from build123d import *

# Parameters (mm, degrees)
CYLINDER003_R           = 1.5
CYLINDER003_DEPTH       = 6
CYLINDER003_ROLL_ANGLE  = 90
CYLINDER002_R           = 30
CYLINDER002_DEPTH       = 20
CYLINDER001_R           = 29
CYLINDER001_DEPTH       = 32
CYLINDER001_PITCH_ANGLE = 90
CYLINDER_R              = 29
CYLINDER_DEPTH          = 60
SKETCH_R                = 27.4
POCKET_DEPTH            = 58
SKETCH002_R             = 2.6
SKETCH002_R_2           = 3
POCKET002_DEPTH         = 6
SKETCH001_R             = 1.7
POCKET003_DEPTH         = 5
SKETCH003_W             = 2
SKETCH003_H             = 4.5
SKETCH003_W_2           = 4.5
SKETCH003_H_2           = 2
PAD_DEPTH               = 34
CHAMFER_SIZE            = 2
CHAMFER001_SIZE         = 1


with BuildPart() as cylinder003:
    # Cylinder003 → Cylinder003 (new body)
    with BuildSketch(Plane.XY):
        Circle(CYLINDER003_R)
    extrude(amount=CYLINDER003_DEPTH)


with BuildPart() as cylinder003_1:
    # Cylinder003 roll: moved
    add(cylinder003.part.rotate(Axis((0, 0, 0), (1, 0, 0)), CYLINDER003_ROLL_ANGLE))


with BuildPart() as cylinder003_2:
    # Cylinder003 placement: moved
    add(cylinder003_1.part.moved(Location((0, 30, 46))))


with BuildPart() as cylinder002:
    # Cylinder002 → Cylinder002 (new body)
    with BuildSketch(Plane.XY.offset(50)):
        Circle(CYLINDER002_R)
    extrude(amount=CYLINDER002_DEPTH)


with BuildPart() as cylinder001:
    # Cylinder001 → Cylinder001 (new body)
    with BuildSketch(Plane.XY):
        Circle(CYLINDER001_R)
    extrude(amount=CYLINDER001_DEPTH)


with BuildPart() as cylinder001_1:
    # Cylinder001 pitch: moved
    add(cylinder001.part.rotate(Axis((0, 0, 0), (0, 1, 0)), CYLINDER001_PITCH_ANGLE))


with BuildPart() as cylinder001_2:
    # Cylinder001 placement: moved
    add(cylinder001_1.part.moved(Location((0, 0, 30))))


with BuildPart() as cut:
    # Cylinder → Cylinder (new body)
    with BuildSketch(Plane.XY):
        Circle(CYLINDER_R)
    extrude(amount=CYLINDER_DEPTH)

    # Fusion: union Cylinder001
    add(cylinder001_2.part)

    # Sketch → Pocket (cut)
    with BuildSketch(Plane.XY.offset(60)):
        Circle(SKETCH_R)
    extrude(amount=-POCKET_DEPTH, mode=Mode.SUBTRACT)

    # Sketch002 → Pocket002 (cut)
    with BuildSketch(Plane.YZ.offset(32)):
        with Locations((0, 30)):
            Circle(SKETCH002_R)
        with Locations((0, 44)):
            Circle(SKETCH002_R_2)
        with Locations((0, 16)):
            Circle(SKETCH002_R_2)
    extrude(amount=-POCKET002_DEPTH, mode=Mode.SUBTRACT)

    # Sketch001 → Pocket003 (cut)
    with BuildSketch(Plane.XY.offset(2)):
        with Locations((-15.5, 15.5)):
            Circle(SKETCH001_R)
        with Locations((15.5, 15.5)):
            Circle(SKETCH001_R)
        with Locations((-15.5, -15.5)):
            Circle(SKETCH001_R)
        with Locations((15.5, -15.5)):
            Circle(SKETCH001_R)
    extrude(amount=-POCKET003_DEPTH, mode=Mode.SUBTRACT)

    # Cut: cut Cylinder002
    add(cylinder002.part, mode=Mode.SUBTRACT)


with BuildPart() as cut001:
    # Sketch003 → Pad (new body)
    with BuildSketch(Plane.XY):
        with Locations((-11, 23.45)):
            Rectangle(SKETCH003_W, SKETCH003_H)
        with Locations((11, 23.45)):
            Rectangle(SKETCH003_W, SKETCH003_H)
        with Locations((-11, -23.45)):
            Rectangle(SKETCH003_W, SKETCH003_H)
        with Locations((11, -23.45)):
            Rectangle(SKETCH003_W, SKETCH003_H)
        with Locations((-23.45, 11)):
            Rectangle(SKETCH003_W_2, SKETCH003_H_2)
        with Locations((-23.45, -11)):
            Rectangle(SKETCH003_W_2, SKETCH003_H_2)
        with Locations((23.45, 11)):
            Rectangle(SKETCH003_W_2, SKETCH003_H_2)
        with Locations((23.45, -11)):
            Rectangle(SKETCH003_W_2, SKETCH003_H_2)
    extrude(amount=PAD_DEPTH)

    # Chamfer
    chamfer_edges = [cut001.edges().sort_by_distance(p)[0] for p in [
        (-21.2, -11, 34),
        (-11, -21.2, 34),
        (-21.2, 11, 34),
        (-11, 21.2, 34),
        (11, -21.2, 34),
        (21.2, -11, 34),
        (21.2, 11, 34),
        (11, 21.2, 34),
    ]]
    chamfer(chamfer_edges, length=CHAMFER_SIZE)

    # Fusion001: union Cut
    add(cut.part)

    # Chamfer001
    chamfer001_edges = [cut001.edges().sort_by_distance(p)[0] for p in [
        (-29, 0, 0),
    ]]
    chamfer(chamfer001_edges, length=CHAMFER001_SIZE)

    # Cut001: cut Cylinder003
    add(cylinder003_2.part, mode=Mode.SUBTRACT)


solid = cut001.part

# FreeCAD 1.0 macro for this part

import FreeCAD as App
import Part
import Sketcher
Q = App.Units.Quantity


def edges_at(feature, points):
    """Names of the edges that pass closest to the given points."""
    edges = feature.Shape.Edges
    near = lambda p: min(range(len(edges)), key=lambda i: edges[i].distToShape(Part.Vertex(*p))[0])
    return sorted({f"Edge{near(p) + 1}" for p in points})

doc = App.newDocument("Part")
params = doc.addObject("Spreadsheet::Sheet", "Params")
for row, (alias, value) in enumerate([
    ("sketch1_diameter", "3 mm"),
    ("pad1_length", "6 mm"),
    ("sketch2_diameter", "60 mm"),
    ("pad2_length", "20 mm"),
    ("sketch3_diameter", "58 mm"),
    ("pad3_length", "32 mm"),
    ("sketch4_diameter", "58 mm"),
    ("pad4_length", "60 mm"),
    ("sketch5_diameter", "54.8 mm"),
    ("pocket1_length", "58 mm"),
    ("sketch6_diameter", "6 mm"),
    ("sketch6_diameter2", "5.2 mm"),
    ("pocket2_length", "6 mm"),
    ("sketch7_diameter", "3.4 mm"),
    ("pocket3_length", "5 mm"),
    ("sketch8_width", "2 mm"),
    ("sketch8_width2", "4.5 mm"),
    ("pad5_length", "34 mm"),
    ("chamfer_size", "2 mm"),
    ("chamfer2_size", "1 mm"),
], start=1):
    params.set(f"A{row}", alias)
    params.set(f"B{row}", "=" + value)
    params.setAlias(f"B{row}", alias)

body = doc.addObject("PartDesign::Body", "Body")

# Sketch on XY plane
sketch1 = body.newObject("Sketcher::SketchObject", "Sketch")
sketch1.AttachmentSupport = (doc.getObject("XY_Plane"), [""])
sketch1.MapMode = "FlatFace"
sketch1.addGeometry(Part.Circle(App.Vector(0, 0, 0), App.Vector(0, 0, 1), 1.5), False)
sketch1.addConstraint([
    Sketcher.Constraint("Coincident", 0, 3, -1, 1),
    Sketcher.Constraint("Diameter", 0, Q("3 mm")),
])
sketch1.setExpression("Constraints[1]", "Params.sketch1_diameter")
pad1 = body.newObject("PartDesign::Pad", "Pad")
pad1.Profile = sketch1
pad1.setExpression("Length", "Params.pad1_length")
body2 = doc.addObject("PartDesign::Body", "Body001")
doc.recompute()

body.Placement = App.Placement(App.Vector(0, 0, 0), App.Rotation(App.Vector(1, 0, 0), 90))
boolean = body2.newObject("PartDesign::Boolean", "Boolean")
boolean.Type = "Fuse"
boolean.addObjects([body])
body3 = doc.addObject("PartDesign::Body", "Body002")
doc.recompute()

body2.Placement = App.Placement(App.Vector(0, 30, 46), App.Rotation(App.Vector(0, 0, 1), 0))
boolean2 = body3.newObject("PartDesign::Boolean", "Boolean001")
boolean2.Type = "Fuse"
boolean2.addObjects([body2])
body4 = doc.addObject("PartDesign::Body", "Body003")

# Sketch on XY plane
sketch2 = body4.newObject("Sketcher::SketchObject", "Sketch001")
sketch2.AttachmentSupport = (doc.getObject("XY_Plane003"), [""])
sketch2.MapMode = "FlatFace"
sketch2.AttachmentOffset = App.Placement(App.Vector(0, 0, 50), App.Rotation())
sketch2.addGeometry(Part.Circle(App.Vector(0, 0, 0), App.Vector(0, 0, 1), 30), False)
sketch2.addConstraint([
    Sketcher.Constraint("Coincident", 0, 3, -1, 1),
    Sketcher.Constraint("Diameter", 0, Q("60 mm")),
])
sketch2.setExpression("Constraints[1]", "Params.sketch2_diameter")
pad2 = body4.newObject("PartDesign::Pad", "Pad001")
pad2.Profile = sketch2
pad2.setExpression("Length", "Params.pad2_length")
body5 = doc.addObject("PartDesign::Body", "Body004")

# Sketch on XY plane
sketch3 = body5.newObject("Sketcher::SketchObject", "Sketch002")
sketch3.AttachmentSupport = (doc.getObject("XY_Plane004"), [""])
sketch3.MapMode = "FlatFace"
sketch3.addGeometry(Part.Circle(App.Vector(0, 0, 0), App.Vector(0, 0, 1), 29), False)
sketch3.addConstraint([
    Sketcher.Constraint("Coincident", 0, 3, -1, 1),
    Sketcher.Constraint("Diameter", 0, Q("58 mm")),
])
sketch3.setExpression("Constraints[1]", "Params.sketch3_diameter")
pad3 = body5.newObject("PartDesign::Pad", "Pad002")
pad3.Profile = sketch3
pad3.setExpression("Length", "Params.pad3_length")
body6 = doc.addObject("PartDesign::Body", "Body005")
doc.recompute()

body5.Placement = App.Placement(App.Vector(0, 0, 0), App.Rotation(App.Vector(0, 1, 0), 90))
boolean3 = body6.newObject("PartDesign::Boolean", "Boolean002")
boolean3.Type = "Fuse"
boolean3.addObjects([body5])
body7 = doc.addObject("PartDesign::Body", "Body006")
doc.recompute()

body6.Placement = App.Placement(App.Vector(0, 0, 30), App.Rotation(App.Vector(0, 0, 1), 0))
boolean4 = body7.newObject("PartDesign::Boolean", "Boolean003")
boolean4.Type = "Fuse"
boolean4.addObjects([body6])
body8 = doc.addObject("PartDesign::Body", "Body007")

# Sketch on XY plane
sketch4 = body8.newObject("Sketcher::SketchObject", "Sketch003")
sketch4.AttachmentSupport = (doc.getObject("XY_Plane007"), [""])
sketch4.MapMode = "FlatFace"
sketch4.addGeometry(Part.Circle(App.Vector(0, 0, 0), App.Vector(0, 0, 1), 29), False)
sketch4.addConstraint([
    Sketcher.Constraint("Coincident", 0, 3, -1, 1),
    Sketcher.Constraint("Diameter", 0, Q("58 mm")),
])
sketch4.setExpression("Constraints[1]", "Params.sketch4_diameter")
pad4 = body8.newObject("PartDesign::Pad", "Pad003")
pad4.Profile = sketch4
pad4.setExpression("Length", "Params.pad4_length")
doc.recompute()

boolean5 = body8.newObject("PartDesign::Boolean", "Boolean004")
boolean5.Type = "Fuse"
boolean5.addObjects([body7])

# Sketch on XY plane
sketch5 = body8.newObject("Sketcher::SketchObject", "Sketch004")
sketch5.AttachmentSupport = (doc.getObject("XY_Plane007"), [""])
sketch5.MapMode = "FlatFace"
sketch5.AttachmentOffset = App.Placement(App.Vector(0, 0, 60), App.Rotation())
sketch5.addGeometry(Part.Circle(App.Vector(0, 0, 0), App.Vector(0, 0, 1), 27.4), False)
sketch5.addConstraint([
    Sketcher.Constraint("Coincident", 0, 3, -1, 1),
    Sketcher.Constraint("Diameter", 0, Q("54.8 mm")),
])
sketch5.setExpression("Constraints[1]", "Params.sketch5_diameter")
pocket1 = body8.newObject("PartDesign::Pocket", "Pocket")
pocket1.Profile = sketch5
pocket1.setExpression("Length", "Params.pocket1_length")

# Sketch on YZ plane
sketch6 = body8.newObject("Sketcher::SketchObject", "Sketch005")
sketch6.AttachmentSupport = (doc.getObject("YZ_Plane007"), [""])
sketch6.MapMode = "FlatFace"
sketch6.AttachmentOffset = App.Placement(App.Vector(0, 0, 32), App.Rotation())
sketch6.addGeometry([
    Part.Circle(App.Vector(0, 30, 0), App.Vector(0, 0, 1), 2.6),
    Part.Circle(App.Vector(0, 44, 0), App.Vector(0, 0, 1), 3),
    Part.Circle(App.Vector(0, 16, 0), App.Vector(0, 0, 1), 3),
], False)
sketch6.addConstraint([
    Sketcher.Constraint("Equal", 1, 2),
    Sketcher.Constraint("PointOnObject", 0, 3, -2),
    Sketcher.Constraint("PointOnObject", 1, 3, -2),
    Sketcher.Constraint("PointOnObject", 2, 3, -2),
    Sketcher.Constraint("Diameter", 1, Q("6 mm")),
    Sketcher.Constraint("Diameter", 0, Q("5.2 mm")),
    Sketcher.Constraint("DistanceY", -1, 1, 0, 3, Q("30 mm")),
    Sketcher.Constraint("DistanceY", -1, 1, 1, 3, Q("44 mm")),
    Sketcher.Constraint("DistanceY", -1, 1, 2, 3, Q("16 mm")),
])
sketch6.setExpression("Constraints[4]", "Params.sketch6_diameter")
sketch6.setExpression("Constraints[5]", "Params.sketch6_diameter2")
pocket2 = body8.newObject("PartDesign::Pocket", "Pocket001")
pocket2.Profile = sketch6
pocket2.setExpression("Length", "Params.pocket2_length")

# Sketch on XY plane
sketch7 = body8.newObject("Sketcher::SketchObject", "Sketch006")
sketch7.AttachmentSupport = (doc.getObject("XY_Plane007"), [""])
sketch7.MapMode = "FlatFace"
sketch7.AttachmentOffset = App.Placement(App.Vector(0, 0, 2), App.Rotation())
sketch7.addGeometry([
    Part.Circle(App.Vector(-15.5, 15.5, 0), App.Vector(0, 0, 1), 1.7),
    Part.Circle(App.Vector(15.5, 15.5, 0), App.Vector(0, 0, 1), 1.7),
    Part.Circle(App.Vector(-15.5, -15.5, 0), App.Vector(0, 0, 1), 1.7),
    Part.Circle(App.Vector(15.5, -15.5, 0), App.Vector(0, 0, 1), 1.7),
], False)
sketch7.addConstraint([
    Sketcher.Constraint("Equal", 0, 1),
    Sketcher.Constraint("Equal", 1, 2),
    Sketcher.Constraint("Equal", 2, 3),
    Sketcher.Constraint("Symmetric", 1, 3, 2, 3, -1, 1),
    Sketcher.Constraint("Symmetric", 0, 3, 3, 3, -1, 1),
    Sketcher.Constraint("Symmetric", 0, 3, 1, 3, -2),
    Sketcher.Constraint("Diameter", 0, Q("3.4 mm")),
    Sketcher.Constraint("DistanceX", 0, 3, 1, 3, Q("31 mm")),
    Sketcher.Constraint("DistanceY", 2, 3, 0, 3, Q("31 mm")),
])
sketch7.setExpression("Constraints[6]", "Params.sketch7_diameter")
pocket3 = body8.newObject("PartDesign::Pocket", "Pocket002")
pocket3.Profile = sketch7
pocket3.setExpression("Length", "Params.pocket3_length")
doc.recompute()

boolean6 = body8.newObject("PartDesign::Boolean", "Boolean005")
boolean6.Type = "Cut"
boolean6.addObjects([body4])
body9 = doc.addObject("PartDesign::Body", "Body008")
body9.AllowCompound = True

# Sketch on XY plane
sketch8 = body9.newObject("Sketcher::SketchObject", "Sketch007")
sketch8.AttachmentSupport = (doc.getObject("XY_Plane008"), [""])
sketch8.MapMode = "FlatFace"
sketch8.addGeometry([
    Part.LineSegment(App.Vector(-12, 25.7, 0), App.Vector(-12, 21.2, 0)),  # 0
    Part.LineSegment(App.Vector(-12, 21.2, 0), App.Vector(-10, 21.2, 0)),  # 1
    Part.LineSegment(App.Vector(-10, 21.2, 0), App.Vector(-10, 25.7, 0)),  # 2
    Part.LineSegment(App.Vector(-10, 25.7, 0), App.Vector(-12, 25.7, 0)),  # 3
    Part.LineSegment(App.Vector(10, 25.7, 0), App.Vector(10, 21.2, 0)),  # 4
    Part.LineSegment(App.Vector(10, 21.2, 0), App.Vector(12, 21.2, 0)),  # 5
    Part.LineSegment(App.Vector(12, 21.2, 0), App.Vector(12, 25.7, 0)),  # 6
    Part.LineSegment(App.Vector(12, 25.7, 0), App.Vector(10, 25.7, 0)),  # 7
    Part.LineSegment(App.Vector(-12, -21.2, 0), App.Vector(-12, -25.7, 0)),  # 8
    Part.LineSegment(App.Vector(-12, -25.7, 0), App.Vector(-10, -25.7, 0)),  # 9
    Part.LineSegment(App.Vector(-10, -25.7, 0), App.Vector(-10, -21.2, 0)),  # 10
    Part.LineSegment(App.Vector(-10, -21.2, 0), App.Vector(-12, -21.2, 0)),  # 11
    Part.LineSegment(App.Vector(10, -21.2, 0), App.Vector(10, -25.7, 0)),  # 12
    Part.LineSegment(App.Vector(10, -25.7, 0), App.Vector(12, -25.7, 0)),  # 13
    Part.LineSegment(App.Vector(12, -25.7, 0), App.Vector(12, -21.2, 0)),  # 14
    Part.LineSegment(App.Vector(12, -21.2, 0), App.Vector(10, -21.2, 0)),  # 15
    Part.LineSegment(App.Vector(-25.7, 12, 0), App.Vector(-25.7, 10, 0)),  # 16
    Part.LineSegment(App.Vector(-25.7, 10, 0), App.Vector(-21.2, 10, 0)),  # 17
    Part.LineSegment(App.Vector(-21.2, 10, 0), App.Vector(-21.2, 12, 0)),  # 18
    Part.LineSegment(App.Vector(-21.2, 12, 0), App.Vector(-25.7, 12, 0)),  # 19
    Part.LineSegment(App.Vector(-25.7, -10, 0), App.Vector(-25.7, -12, 0)),  # 20
    Part.LineSegment(App.Vector(-25.7, -12, 0), App.Vector(-21.2, -12, 0)),  # 21
    Part.LineSegment(App.Vector(-21.2, -12, 0), App.Vector(-21.2, -10, 0)),  # 22
    Part.LineSegment(App.Vector(-21.2, -10, 0), App.Vector(-25.7, -10, 0)),  # 23
    Part.LineSegment(App.Vector(21.2, 12, 0), App.Vector(21.2, 10, 0)),  # 24
    Part.LineSegment(App.Vector(21.2, 10, 0), App.Vector(25.7, 10, 0)),  # 25
    Part.LineSegment(App.Vector(25.7, 10, 0), App.Vector(25.7, 12, 0)),  # 26
    Part.LineSegment(App.Vector(25.7, 12, 0), App.Vector(21.2, 12, 0)),  # 27
    Part.LineSegment(App.Vector(21.2, -10, 0), App.Vector(21.2, -12, 0)),  # 28
    Part.LineSegment(App.Vector(21.2, -12, 0), App.Vector(25.7, -12, 0)),  # 29
    Part.LineSegment(App.Vector(25.7, -12, 0), App.Vector(25.7, -10, 0)),  # 30
    Part.LineSegment(App.Vector(25.7, -10, 0), App.Vector(21.2, -10, 0)),  # 31
], False)
sketch8.addConstraint([
    Sketcher.Constraint("Coincident", 0, 2, 1, 1),
    Sketcher.Constraint("Coincident", 1, 2, 2, 1),
    Sketcher.Constraint("Coincident", 2, 2, 3, 1),
    Sketcher.Constraint("Coincident", 3, 2, 0, 1),
    Sketcher.Constraint("Coincident", 4, 2, 5, 1),
    Sketcher.Constraint("Coincident", 5, 2, 6, 1),
    Sketcher.Constraint("Coincident", 6, 2, 7, 1),
    Sketcher.Constraint("Coincident", 7, 2, 4, 1),
    Sketcher.Constraint("Coincident", 8, 2, 9, 1),
    Sketcher.Constraint("Coincident", 9, 2, 10, 1),
    Sketcher.Constraint("Coincident", 10, 2, 11, 1),
    Sketcher.Constraint("Coincident", 11, 2, 8, 1),
    Sketcher.Constraint("Coincident", 12, 2, 13, 1),
    Sketcher.Constraint("Coincident", 13, 2, 14, 1),
    Sketcher.Constraint("Coincident", 14, 2, 15, 1),
    Sketcher.Constraint("Coincident", 15, 2, 12, 1),
    Sketcher.Constraint("Coincident", 16, 2, 17, 1),
    Sketcher.Constraint("Coincident", 17, 2, 18, 1),
    Sketcher.Constraint("Coincident", 18, 2, 19, 1),
    Sketcher.Constraint("Coincident", 19, 2, 16, 1),
    Sketcher.Constraint("Coincident", 20, 2, 21, 1),
    Sketcher.Constraint("Coincident", 21, 2, 22, 1),
    Sketcher.Constraint("Coincident", 22, 2, 23, 1),
    Sketcher.Constraint("Coincident", 23, 2, 20, 1),
    Sketcher.Constraint("Coincident", 24, 2, 25, 1),
    Sketcher.Constraint("Coincident", 25, 2, 26, 1),
    Sketcher.Constraint("Coincident", 26, 2, 27, 1),
    Sketcher.Constraint("Coincident", 27, 2, 24, 1),
    Sketcher.Constraint("Coincident", 28, 2, 29, 1),
    Sketcher.Constraint("Coincident", 29, 2, 30, 1),
    Sketcher.Constraint("Coincident", 30, 2, 31, 1),
    Sketcher.Constraint("Coincident", 31, 2, 28, 1),
    Sketcher.Constraint("Vertical", 0),
    Sketcher.Constraint("Horizontal", 1),
    Sketcher.Constraint("Vertical", 2),
    Sketcher.Constraint("Horizontal", 3),
    Sketcher.Constraint("Vertical", 4),
    Sketcher.Constraint("Horizontal", 5),
    Sketcher.Constraint("Vertical", 6),
    Sketcher.Constraint("Horizontal", 7),
    Sketcher.Constraint("Vertical", 8),
    Sketcher.Constraint("Horizontal", 9),
    Sketcher.Constraint("Vertical", 10),
    Sketcher.Constraint("Horizontal", 11),
    Sketcher.Constraint("Vertical", 12),
    Sketcher.Constraint("Horizontal", 13),
    Sketcher.Constraint("Vertical", 14),
    Sketcher.Constraint("Horizontal", 15),
    Sketcher.Constraint("Vertical", 16),
    Sketcher.Constraint("Horizontal", 17),
    Sketcher.Constraint("Vertical", 18),
    Sketcher.Constraint("Horizontal", 19),
    Sketcher.Constraint("Vertical", 20),
    Sketcher.Constraint("Horizontal", 21),
    Sketcher.Constraint("Vertical", 22),
    Sketcher.Constraint("Horizontal", 23),
    Sketcher.Constraint("Vertical", 24),
    Sketcher.Constraint("Horizontal", 25),
    Sketcher.Constraint("Vertical", 26),
    Sketcher.Constraint("Horizontal", 27),
    Sketcher.Constraint("Vertical", 28),
    Sketcher.Constraint("Horizontal", 29),
    Sketcher.Constraint("Vertical", 30),
    Sketcher.Constraint("Horizontal", 31),
    Sketcher.Constraint("Symmetric", 6, 2, 8, 2, -1, 1),
    Sketcher.Constraint("Symmetric", 4, 2, 10, 2, -1, 1),
    Sketcher.Constraint("Symmetric", 2, 2, 12, 2, -1, 1),
    Sketcher.Constraint("Symmetric", 0, 2, 14, 2, -1, 1),
    Sketcher.Constraint("Symmetric", 22, 2, 24, 2, -1, 1),
    Sketcher.Constraint("Symmetric", 20, 2, 26, 2, -1, 1),
    Sketcher.Constraint("Symmetric", 18, 2, 28, 2, -1, 1),
    Sketcher.Constraint("Symmetric", 16, 2, 30, 2, -1, 1),
    Sketcher.Constraint("Symmetric", 1, 2, 4, 2, -2),
    Sketcher.Constraint("Symmetric", 3, 2, 6, 2, -2),
    Sketcher.Constraint("Symmetric", 17, 2, 24, 2, -2),
    Sketcher.Constraint("Symmetric", 19, 2, 26, 2, -2),
    Sketcher.Constraint("Equal", 31, 0),
    Sketcher.Constraint("Equal", 15, 16),
    Sketcher.Constraint("DistanceX", 1, 1, 1, 2, Q("2 mm")),
    Sketcher.Constraint("DistanceX", 17, 1, 17, 2, Q("4.5 mm")),
    Sketcher.Constraint("DistanceX", 0, 2, -1, 1, Q("12 mm")),
    Sketcher.Constraint("DistanceY", -1, 1, 16, 2, Q("10 mm")),
    Sketcher.Constraint("DistanceY", -1, 1, 0, 2, Q("21.2 mm")),
    Sketcher.Constraint("DistanceX", 16, 2, -1, 1, Q("25.7 mm")),
])
sketch8.setExpression("Constraints[78]", "Params.sketch8_width")
sketch8.setExpression("Constraints[79]", "Params.sketch8_width2")
pad5 = body9.newObject("PartDesign::Pad", "Pad004")
pad5.Profile = sketch8
pad5.setExpression("Length", "Params.pad5_length")
doc.recompute()

chamfer = body9.newObject("PartDesign::Chamfer", "Chamfer")
chamfer.Base = (pad5, edges_at(pad5, [
    (-21.2, -11, 34),
    (-11, -21.2, 34),
    (-21.2, 11, 34),
    (-11, 21.2, 34),
    (11, -21.2, 34),
    (21.2, -11, 34),
    (21.2, 11, 34),
    (11, 21.2, 34),
]))
chamfer.setExpression("Size", "Params.chamfer_size")
doc.recompute()

boolean7 = body9.newObject("PartDesign::Boolean", "Boolean006")
boolean7.Type = "Fuse"
boolean7.addObjects([body8])
doc.recompute()

chamfer2 = body9.newObject("PartDesign::Chamfer", "Chamfer001")
chamfer2.Base = (boolean7, edges_at(boolean7, [(-29, 0, 0)]))
chamfer2.setExpression("Size", "Params.chamfer2_size")
doc.recompute()

boolean8 = body9.newObject("PartDesign::Boolean", "Boolean007")
boolean8.Type = "Cut"
boolean8.addObjects([body3])

doc.recompute()
